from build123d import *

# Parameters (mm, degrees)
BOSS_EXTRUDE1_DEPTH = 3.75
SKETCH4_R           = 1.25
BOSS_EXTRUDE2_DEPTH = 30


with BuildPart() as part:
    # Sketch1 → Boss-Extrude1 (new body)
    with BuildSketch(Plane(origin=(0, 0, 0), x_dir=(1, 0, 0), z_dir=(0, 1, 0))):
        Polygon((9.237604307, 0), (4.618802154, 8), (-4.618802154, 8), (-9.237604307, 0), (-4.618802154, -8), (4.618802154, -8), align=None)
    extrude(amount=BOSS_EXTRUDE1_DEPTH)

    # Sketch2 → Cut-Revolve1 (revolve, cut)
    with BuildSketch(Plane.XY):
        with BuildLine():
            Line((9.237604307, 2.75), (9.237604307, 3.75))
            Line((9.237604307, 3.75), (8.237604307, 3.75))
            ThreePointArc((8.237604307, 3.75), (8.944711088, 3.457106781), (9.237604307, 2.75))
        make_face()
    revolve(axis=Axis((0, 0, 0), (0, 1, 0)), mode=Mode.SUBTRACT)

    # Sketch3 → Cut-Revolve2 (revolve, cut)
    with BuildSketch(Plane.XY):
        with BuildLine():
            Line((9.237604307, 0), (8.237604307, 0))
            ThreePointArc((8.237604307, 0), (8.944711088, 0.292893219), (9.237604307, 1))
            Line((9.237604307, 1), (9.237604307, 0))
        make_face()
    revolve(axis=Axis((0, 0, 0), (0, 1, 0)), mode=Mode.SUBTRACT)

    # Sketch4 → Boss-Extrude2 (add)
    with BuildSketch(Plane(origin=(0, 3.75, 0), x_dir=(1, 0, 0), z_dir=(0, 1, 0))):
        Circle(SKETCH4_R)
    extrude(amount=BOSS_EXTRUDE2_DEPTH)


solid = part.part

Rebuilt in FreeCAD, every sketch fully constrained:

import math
import FreeCAD as App
import Part
import Sketcher

V = App.Vector
Q = App.Units.Quantity


def add_polygon(sketch, points):
    """Adds a closed chain of lines whose ends are joined by coincident constraints."""
    first, n = sketch.GeometryCount, len(points)
    for a, b in zip(points, points[1:] + points[:1]):
        sketch.addGeometry(Part.LineSegment(App.Vector(*a, 0), App.Vector(*b, 0)), False)
    for i in range(n):
        sketch.addConstraint(Sketcher.Constraint("Coincident", first + i, 2, first + (i + 1) % n, 1))

doc = App.newDocument("Part")
body = doc.addObject("PartDesign::Body", "Body")

sketch1 = body.newObject("Sketcher::SketchObject", "Sketch")
sketch1.AttachmentSupport = (doc.getObject("XZ_Plane"), [""])
sketch1.MapMode = "FlatFace"
add_polygon(sketch1, [(9, 0), (5, -8), (-5, -8), (-9, 0), (-5, 8), (5, 8)])
sketch1.addConstraint([
    Sketcher.Constraint("Horizontal", 1),
    Sketcher.Constraint("Horizontal", 4),
    Sketcher.Constraint("Symmetric", 0, 2, 3, 2, -1, 1),
    Sketcher.Constraint("Symmetric", 2, 2, 5, 2, -1, 1),
    Sketcher.Constraint("PointOnObject", 2, 2, -1),
    Sketcher.Constraint("Parallel", 2, 5),
    Sketcher.Constraint("Vertical", 1, 2, 3, 2),
    Sketcher.Constraint("Angle", 0, Q("-120 deg")),
    Sketcher.Constraint("DistanceY", 0, 2, -1, 1, Q("8 mm")),
    Sketcher.Constraint("DistanceX", 1, 2, 1, 1, Q("9.237604 mm")),
])
pad1 = body.newObject("PartDesign::Pad", "Pad")
pad1.Profile = sketch1
pad1.Length = 3.75
pad1.Reversed = True

sketch2 = body.newObject("Sketcher::SketchObject", "Sketch001")
sketch2.AttachmentSupport = (doc.getObject("XY_Plane"), [""])
sketch2.MapMode = "FlatFace"
sketch2.addGeometry([
    Part.LineSegment(V(9.2, 2.8, 0), V(9.2, 3.8, 0)),
    Part.LineSegment(V(9.2, 3.8, 0), V(8.2, 3.8, 0)),
    Part.ArcOfCircle(Part.Circle(V(8.2, 2.7, 0), V(0, 0, 1), 1), math.radians(0), math.radians(90)),
], False)
sketch2.addConstraint([
    Sketcher.Constraint("Coincident", 0, 2, 1, 1),
    Sketcher.Constraint("Tangent", 1, 2, 2, 2),
    Sketcher.Constraint("Tangent", 2, 1, 0, 1),
    Sketcher.Constraint("Vertical", 0),
    Sketcher.Constraint("Horizontal", 1),
    Sketcher.Constraint("Radius", 2, Q("1 mm")),
    Sketcher.Constraint("DistanceY", -1, 1, 2, 3, Q("2.75 mm")),
    Sketcher.Constraint("DistanceX", -1, 1, 2, 3, Q("8.237604 mm")),
])
groove = body.newObject("PartDesign::Groove", "Groove")
groove.Profile = sketch2
groove.ReferenceAxis = (sketch2, ["V_Axis"])
groove.Angle = 360

sketch3 = body.newObject("Sketcher::SketchObject", "Sketch002")
sketch3.AttachmentSupport = (doc.getObject("XY_Plane"), [""])
sketch3.MapMode = "FlatFace"
sketch3.addGeometry([
    Part.LineSegment(V(8.2, 0, 0), V(9.2, 0, 0)),
    Part.LineSegment(V(9.2, 0, 0), V(9.2, 1, 0)),
    Part.ArcOfCircle(Part.Circle(V(8.2, 1, 0), V(0, 0, 1), 1), math.radians(-90), math.radians(0)),
], False)
sketch3.addConstraint([
    Sketcher.Constraint("Coincident", 0, 2, 1, 1),
    Sketcher.Constraint("Tangent", 1, 2, 2, 2),
    Sketcher.Constraint("Tangent", 2, 1, 0, 1),
    Sketcher.Constraint("Horizontal", 0),
    Sketcher.Constraint("Vertical", 1),
    Sketcher.Constraint("PointOnObject", 0, 2, -1),
    Sketcher.Constraint("Radius", 2, Q("1 mm")),
    Sketcher.Constraint("DistanceX", -1, 1, 2, 3, Q("8.237604 mm")),
])
groove2 = body.newObject("PartDesign::Groove", "Groove001")
groove2.Profile = sketch3
groove2.ReferenceAxis = (sketch3, ["V_Axis"])
groove2.Angle = 360

sketch4 = body.newObject("Sketcher::SketchObject", "Sketch003")
sketch4.AttachmentSupport = (doc.getObject("XZ_Plane"), [""])
sketch4.MapMode = "FlatFace"
sketch4.AttachmentOffset = App.Placement(V(0, 0, -3.75), App.Rotation())
sketch4.addGeometry(Part.Circle(V(0, 0, 0), V(0, 0, 1), 1.2), False)
sketch4.addConstraint([
    Sketcher.Constraint("Coincident", 0, 3, -1, 1),
    Sketcher.Constraint("Diameter", 0, Q("2.5 mm")),
])
pad2 = body.newObject("PartDesign::Pad", "Pad001")
pad2.Profile = sketch4
pad2.Length = 30
pad2.Reversed = True

doc.recompute()
